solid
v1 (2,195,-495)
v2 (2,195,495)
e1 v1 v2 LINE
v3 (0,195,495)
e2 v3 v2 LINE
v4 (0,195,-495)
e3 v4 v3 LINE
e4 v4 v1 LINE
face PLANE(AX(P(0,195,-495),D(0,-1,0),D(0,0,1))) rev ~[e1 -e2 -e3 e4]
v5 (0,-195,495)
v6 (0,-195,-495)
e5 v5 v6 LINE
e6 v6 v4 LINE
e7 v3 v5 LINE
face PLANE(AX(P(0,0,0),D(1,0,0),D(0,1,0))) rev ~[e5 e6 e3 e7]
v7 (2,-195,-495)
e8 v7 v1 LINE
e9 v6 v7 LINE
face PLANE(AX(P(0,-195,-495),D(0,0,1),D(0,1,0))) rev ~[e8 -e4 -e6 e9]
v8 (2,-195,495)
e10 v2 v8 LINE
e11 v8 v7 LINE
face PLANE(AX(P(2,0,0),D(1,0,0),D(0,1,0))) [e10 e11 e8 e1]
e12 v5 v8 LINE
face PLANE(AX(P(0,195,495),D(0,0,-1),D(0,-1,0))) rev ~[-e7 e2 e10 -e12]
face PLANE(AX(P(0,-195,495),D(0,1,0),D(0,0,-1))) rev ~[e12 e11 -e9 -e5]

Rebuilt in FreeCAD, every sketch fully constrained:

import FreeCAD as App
import Part
import Sketcher
Q = App.Units.Quantity


def add_polygon(sketch, points):
    """Adds a closed chain of lines whose ends are joined by coincident constraints."""
    first, n = sketch.GeometryCount, len(points)
    for a, b in zip(points, points[1:] + points[:1]):
        sketch.addGeometry(Part.LineSegment(App.Vector(*a, 0), App.Vector(*b, 0)), False)
    for i in range(n):
        sketch.addConstraint(Sketcher.Constraint("Coincident", first + i, 2, first + (i + 1) % n, 1))

doc = App.newDocument("Part")
body = doc.addObject("PartDesign::Body", "Body")

sketch1 = body.newObject("Sketcher::SketchObject", "Sketch")
sketch1.AttachmentSupport = (doc.getObject("YZ_Plane"), [""])
sketch1.MapMode = "FlatFace"
add_polygon(sketch1, [(195, -495), (195, 495), (-195, 495), (-195, -495)])
sketch1.addConstraint(Sketcher.Constraint("Vertical", 0))
sketch1.addConstraint(Sketcher.Constraint("Horizontal", 1))
sketch1.addConstraint(Sketcher.Constraint("Vertical", 2))
sketch1.addConstraint(Sketcher.Constraint("Horizontal", 3))
sketch1.addConstraint(Sketcher.Constraint("Symmetric", 0, 2, 2, 2, -1, 1))
sketch1.addConstraint(Sketcher.Constraint("DistanceX", 1, 2, 1, 1, Q("390 mm")))
sketch1.addConstraint(Sketcher.Constraint("DistanceY", 0, 1, 0, 2, Q("990 mm")))
pad1 = body.newObject("PartDesign::Pad", "Pad")
pad1.Profile = sketch1
pad1.Length = 2

doc.recompute()
